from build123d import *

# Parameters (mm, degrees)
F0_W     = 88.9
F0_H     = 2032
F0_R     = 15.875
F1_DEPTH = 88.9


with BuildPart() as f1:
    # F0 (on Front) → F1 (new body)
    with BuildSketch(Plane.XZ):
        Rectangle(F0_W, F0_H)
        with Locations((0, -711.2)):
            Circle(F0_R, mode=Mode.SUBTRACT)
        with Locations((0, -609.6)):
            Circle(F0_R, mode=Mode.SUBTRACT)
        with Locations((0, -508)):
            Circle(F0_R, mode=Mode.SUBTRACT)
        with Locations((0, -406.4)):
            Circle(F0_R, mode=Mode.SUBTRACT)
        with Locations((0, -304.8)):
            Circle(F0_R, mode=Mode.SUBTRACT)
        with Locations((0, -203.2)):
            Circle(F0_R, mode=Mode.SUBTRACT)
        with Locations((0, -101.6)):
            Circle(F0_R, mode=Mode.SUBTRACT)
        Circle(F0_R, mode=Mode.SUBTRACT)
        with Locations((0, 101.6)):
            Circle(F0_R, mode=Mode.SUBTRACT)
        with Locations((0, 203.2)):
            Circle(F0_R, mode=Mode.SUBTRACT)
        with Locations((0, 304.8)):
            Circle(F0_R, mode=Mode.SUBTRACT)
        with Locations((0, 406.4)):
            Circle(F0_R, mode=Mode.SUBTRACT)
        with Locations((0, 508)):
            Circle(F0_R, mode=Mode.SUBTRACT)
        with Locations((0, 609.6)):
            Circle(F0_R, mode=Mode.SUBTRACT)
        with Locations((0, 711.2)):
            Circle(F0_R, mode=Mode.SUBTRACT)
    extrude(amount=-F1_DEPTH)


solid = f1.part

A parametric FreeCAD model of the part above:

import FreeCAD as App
import Part
import Sketcher
Q = App.Units.Quantity


def add_polygon(sketch, points):
    """Adds a closed chain of lines whose ends are joined by coincident constraints."""
    first, n = sketch.GeometryCount, len(points)
    for a, b in zip(points, points[1:] + points[:1]):
        sketch.addGeometry(Part.LineSegment(App.Vector(*a, 0), App.Vector(*b, 0)), False)
    for i in range(n):
        sketch.addConstraint(Sketcher.Constraint("Coincident", first + i, 2, first + (i + 1) % n, 1))

doc = App.newDocument("Part")
body = doc.addObject("PartDesign::Body", "Body")

# Sketch on XZ plane
sketch1 = body.newObject("Sketcher::SketchObject", "Sketch")
sketch1.AttachmentSupport = (doc.getObject("XZ_Plane"), [""])
sketch1.MapMode = "FlatFace"
add_polygon(sketch1, [(-44, 1016), (-44, -1016), (44, -1016), (44, 1016)])  # lines 0-3
sketch1.addGeometry(Part.Circle(App.Vector(0, -711, 0), App.Vector(0, 0, 1), 16), False)  # 4
sketch1.addGeometry(Part.Circle(App.Vector(0, -610, 0), App.Vector(0, 0, 1), 16), False)  # 5
sketch1.addGeometry(Part.Circle(App.Vector(0, -508, 0), App.Vector(0, 0, 1), 16), False)  # 6
sketch1.addGeometry(Part.Circle(App.Vector(0, -406, 0), App.Vector(0, 0, 1), 16), False)  # 7
sketch1.addGeometry(Part.Circle(App.Vector(0, -305, 0), App.Vector(0, 0, 1), 16), False)  # 8
sketch1.addGeometry(Part.Circle(App.Vector(0, -203, 0), App.Vector(0, 0, 1), 16), False)  # 9
sketch1.addGeometry(Part.Circle(App.Vector(0, -102, 0), App.Vector(0, 0, 1), 16), False)  # 10
sketch1.addGeometry(Part.Circle(App.Vector(0, 0, 0), App.Vector(0, 0, 1), 16), False)  # 11
sketch1.addGeometry(Part.Circle(App.Vector(0, 102, 0), App.Vector(0, 0, 1), 16), False)  # 12
sketch1.addGeometry(Part.Circle(App.Vector(0, 203, 0), App.Vector(0, 0, 1), 16), False)  # 13
sketch1.addGeometry(Part.Circle(App.Vector(0, 305, 0), App.Vector(0, 0, 1), 16), False)  # 14
sketch1.addGeometry(Part.Circle(App.Vector(0, 406, 0), App.Vector(0, 0, 1), 16), False)  # 15
sketch1.addGeometry(Part.Circle(App.Vector(0, 508, 0), App.Vector(0, 0, 1), 16), False)  # 16
sketch1.addGeometry(Part.Circle(App.Vector(0, 610, 0), App.Vector(0, 0, 1), 16), False)  # 17
sketch1.addGeometry(Part.Circle(App.Vector(0, 711, 0), App.Vector(0, 0, 1), 16), False)  # 18
sketch1.addConstraint([
    Sketcher.Constraint("Vertical", 0),
    Sketcher.Constraint("Horizontal", 1),
    Sketcher.Constraint("Vertical", 2),
    Sketcher.Constraint("Horizontal", 3),
    Sketcher.Constraint("Coincident", 11, 3, -1, 1),
    Sketcher.Constraint("Equal", 4, 5),
    Sketcher.Constraint("Equal", 5, 6),
    Sketcher.Constraint("Equal", 6, 7),
    Sketcher.Constraint("Equal", 7, 8),
    Sketcher.Constraint("Equal", 8, 9),
    Sketcher.Constraint("Equal", 9, 10),
    Sketcher.Constraint("Equal", 10, 11),
    Sketcher.Constraint("Equal", 11, 12),
    Sketcher.Constraint("Equal", 12, 13),
    Sketcher.Constraint("Equal", 13, 14),
    Sketcher.Constraint("Equal", 14, 15),
    Sketcher.Constraint("Equal", 15, 16),
    Sketcher.Constraint("Equal", 16, 17),
    Sketcher.Constraint("Equal", 17, 18),
    Sketcher.Constraint("Symmetric", 10, 3, 12, 3, -1, 1),
    Sketcher.Constraint("Symmetric", 9, 3, 13, 3, -1, 1),
    Sketcher.Constraint("Symmetric", 8, 3, 14, 3, -1, 1),
    Sketcher.Constraint("Symmetric", 7, 3, 15, 3, -1, 1),
    Sketcher.Constraint("Symmetric", 6, 3, 16, 3, -1, 1),
    Sketcher.Constraint("Symmetric", 5, 3, 17, 3, -1, 1),
    Sketcher.Constraint("Symmetric", 4, 3, 18, 3, -1, 1),
    Sketcher.Constraint("Symmetric", 0, 2, 2, 2, -1, 1),
    Sketcher.Constraint("PointOnObject", 4, 3, -2),
    Sketcher.Constraint("PointOnObject", 5, 3, -2),
    Sketcher.Constraint("PointOnObject", 6, 3, -2),
    Sketcher.Constraint("PointOnObject", 7, 3, -2),
    Sketcher.Constraint("PointOnObject", 8, 3, -2),
    Sketcher.Constraint("PointOnObject", 9, 3, -2),
    Sketcher.Constraint("PointOnObject", 10, 3, -2),
    Sketcher.Constraint("Diameter", 4, Q("1.25 in")),
    Sketcher.Constraint("DistanceY", 0, 2, 0, 1, Q("80 in")),
    Sketcher.Constraint("DistanceX", 1, 1, 1, 2, Q("3.5 in")),
    Sketcher.Constraint("DistanceY", 4, 3, -1, 1, Q("28 in")),
    Sketcher.Constraint("DistanceY", 5, 3, -1, 1, Q("24 in")),
    Sketcher.Constraint("DistanceY", 6, 3, -1, 1, Q("20 in")),
    Sketcher.Constraint("DistanceY", 7, 3, -1, 1, Q("16 in")),
    Sketcher.Constraint("DistanceY", 8, 3, -1, 1, Q("12 in")),
    Sketcher.Constraint("DistanceY", 9, 3, -1, 1, Q("8 in")),
    Sketcher.Constraint("DistanceY", 10, 3, -1, 1, Q("4 in")),
])
pad1 = body.newObject("PartDesign::Pad", "Pad")
pad1.Profile = sketch1
pad1.Length = Q("3.5 in")
pad1.Reversed = True

doc.recompute()
